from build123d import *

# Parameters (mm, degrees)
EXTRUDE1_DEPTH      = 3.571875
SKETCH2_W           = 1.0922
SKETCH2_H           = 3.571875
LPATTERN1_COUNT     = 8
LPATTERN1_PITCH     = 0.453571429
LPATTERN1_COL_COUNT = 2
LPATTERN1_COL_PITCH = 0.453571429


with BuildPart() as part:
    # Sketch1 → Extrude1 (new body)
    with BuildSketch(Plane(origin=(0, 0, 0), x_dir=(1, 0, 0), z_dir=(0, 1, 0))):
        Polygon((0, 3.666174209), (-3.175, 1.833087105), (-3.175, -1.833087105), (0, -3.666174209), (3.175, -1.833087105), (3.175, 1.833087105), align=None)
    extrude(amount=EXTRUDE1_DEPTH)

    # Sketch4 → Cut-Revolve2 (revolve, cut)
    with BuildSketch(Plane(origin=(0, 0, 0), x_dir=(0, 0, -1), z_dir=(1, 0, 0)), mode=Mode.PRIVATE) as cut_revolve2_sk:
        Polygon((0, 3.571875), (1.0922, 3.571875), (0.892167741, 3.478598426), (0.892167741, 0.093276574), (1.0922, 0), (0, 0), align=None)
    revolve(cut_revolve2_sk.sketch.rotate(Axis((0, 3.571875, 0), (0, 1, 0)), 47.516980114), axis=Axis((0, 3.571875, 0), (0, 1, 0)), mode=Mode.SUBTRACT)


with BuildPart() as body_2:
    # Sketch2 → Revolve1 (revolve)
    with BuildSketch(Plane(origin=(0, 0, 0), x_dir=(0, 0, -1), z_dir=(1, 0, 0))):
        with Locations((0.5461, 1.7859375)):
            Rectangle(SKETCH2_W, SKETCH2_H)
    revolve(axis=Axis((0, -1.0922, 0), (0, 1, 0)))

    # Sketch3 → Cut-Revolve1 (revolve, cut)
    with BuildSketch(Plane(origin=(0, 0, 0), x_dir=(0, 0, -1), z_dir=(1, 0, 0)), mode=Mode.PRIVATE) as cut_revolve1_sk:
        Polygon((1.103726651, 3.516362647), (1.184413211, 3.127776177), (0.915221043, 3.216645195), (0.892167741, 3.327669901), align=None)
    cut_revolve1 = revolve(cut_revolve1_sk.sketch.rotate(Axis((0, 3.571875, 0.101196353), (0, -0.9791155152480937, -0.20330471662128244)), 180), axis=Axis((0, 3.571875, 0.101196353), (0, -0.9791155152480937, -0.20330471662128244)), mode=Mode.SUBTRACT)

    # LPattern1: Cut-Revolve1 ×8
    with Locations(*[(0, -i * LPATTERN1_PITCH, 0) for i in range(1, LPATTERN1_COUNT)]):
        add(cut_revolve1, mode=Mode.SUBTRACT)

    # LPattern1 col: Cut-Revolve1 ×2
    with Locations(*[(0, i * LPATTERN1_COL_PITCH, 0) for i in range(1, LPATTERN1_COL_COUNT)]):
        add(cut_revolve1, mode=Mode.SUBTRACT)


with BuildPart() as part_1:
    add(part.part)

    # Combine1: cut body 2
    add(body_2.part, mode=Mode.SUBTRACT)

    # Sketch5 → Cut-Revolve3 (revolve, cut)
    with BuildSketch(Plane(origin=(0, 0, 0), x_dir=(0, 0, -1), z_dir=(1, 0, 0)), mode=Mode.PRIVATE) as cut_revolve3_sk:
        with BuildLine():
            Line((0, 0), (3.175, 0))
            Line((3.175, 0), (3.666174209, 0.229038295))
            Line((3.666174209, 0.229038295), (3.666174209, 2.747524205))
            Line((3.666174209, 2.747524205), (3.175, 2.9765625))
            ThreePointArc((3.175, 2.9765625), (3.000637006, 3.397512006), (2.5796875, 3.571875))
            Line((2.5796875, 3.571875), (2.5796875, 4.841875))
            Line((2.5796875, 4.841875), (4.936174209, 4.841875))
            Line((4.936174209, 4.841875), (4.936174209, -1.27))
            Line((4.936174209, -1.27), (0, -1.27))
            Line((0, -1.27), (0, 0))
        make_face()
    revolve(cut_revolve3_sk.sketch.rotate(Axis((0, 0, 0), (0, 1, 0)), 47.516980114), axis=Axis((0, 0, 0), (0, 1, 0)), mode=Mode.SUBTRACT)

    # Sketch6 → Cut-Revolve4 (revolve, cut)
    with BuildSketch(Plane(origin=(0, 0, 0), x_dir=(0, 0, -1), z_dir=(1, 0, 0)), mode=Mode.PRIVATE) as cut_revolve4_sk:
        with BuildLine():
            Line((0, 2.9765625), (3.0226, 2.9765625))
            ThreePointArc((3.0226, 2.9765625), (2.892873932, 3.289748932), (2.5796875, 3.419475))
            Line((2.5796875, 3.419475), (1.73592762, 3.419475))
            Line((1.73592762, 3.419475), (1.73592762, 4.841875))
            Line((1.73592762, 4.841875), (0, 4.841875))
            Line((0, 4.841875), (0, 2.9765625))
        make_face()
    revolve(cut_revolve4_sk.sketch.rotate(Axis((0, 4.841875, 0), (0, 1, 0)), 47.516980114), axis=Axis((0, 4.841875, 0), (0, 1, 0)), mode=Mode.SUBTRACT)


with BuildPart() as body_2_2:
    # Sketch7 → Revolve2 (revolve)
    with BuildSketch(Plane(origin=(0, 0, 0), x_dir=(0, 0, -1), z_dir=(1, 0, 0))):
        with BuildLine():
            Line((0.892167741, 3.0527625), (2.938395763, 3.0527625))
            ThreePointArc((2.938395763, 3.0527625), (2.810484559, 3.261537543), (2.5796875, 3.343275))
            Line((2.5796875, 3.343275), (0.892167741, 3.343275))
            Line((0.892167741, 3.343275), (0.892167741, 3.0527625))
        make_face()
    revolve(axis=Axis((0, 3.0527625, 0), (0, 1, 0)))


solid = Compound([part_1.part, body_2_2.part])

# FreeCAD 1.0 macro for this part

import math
import FreeCAD as App
import Part
import Sketcher
from FreeCAD import Vector
Q = App.Units.Quantity

doc = App.newDocument("Part")
params = doc.addObject("Spreadsheet::Sheet", "Params")
for row, (alias, value) in enumerate([
    ("pad1_length", "0.140625 in"),
    ("sketch2_width", "0.140625 in"),
    ("sketch2_height", "0.043 in"),
    ("groove_angle", "360 deg"),
    ("sketch3_width", "0.140625 in"),
    ("sketch3_height", "0.043 in"),
    ("revolution_angle", "360 deg"),
    ("sketch4_length", "0.015625 in"),
    ("groove2_angle", "360 deg"),
    ("linearpattern_pitch", "0.453571 mm"),
    ("linearpattern2_pitch", "0.453571 mm"),
    ("sketch5_width", "0.05 in"),
    ("sketch5_height", "0.125 in"),
    ("groove3_angle", "360 deg"),
    ("sketch6_width", "0.056 in"),
    ("sketch6_height", "0.119 in"),
    ("groove4_angle", "360 deg"),
    ("revolution2_angle", "360 deg"),
], start=1):
    params.set(f"A{row}", alias)
    params.set(f"B{row}", "=" + value)
    params.setAlias(f"B{row}", alias)

body = doc.addObject("PartDesign::Body", "Body")

sketch1 = body.newObject("Sketcher::SketchObject", "Sketch")
sketch1.AttachmentSupport = (doc.getObject("XZ_Plane"), [""])
sketch1.MapMode = "FlatFace"
sketch1.addGeometry([
    Part.LineSegment(Vector(0, -3.666174, 0), Vector(-3.175, -1.833087, 0)),
    Part.LineSegment(Vector(-3.175, -1.833087, 0), Vector(-3.175, 1.833087, 0)),
    Part.LineSegment(Vector(-3.175, 1.833087, 0), Vector(0, 3.666174, 0)),
    Part.LineSegment(Vector(0, 3.666174, 0), Vector(3.175, 1.833087, 0)),
    Part.LineSegment(Vector(3.175, 1.833087, 0), Vector(3.175, -1.833087, 0)),
    Part.LineSegment(Vector(3.175, -1.833087, 0), Vector(0, -3.666174, 0)),
], False)
sketch1.addConstraint([
    Sketcher.Constraint("Coincident", 0, 2, 1, 1),
    Sketcher.Constraint("Coincident", 1, 2, 2, 1),
    Sketcher.Constraint("Coincident", 2, 2, 3, 1),
    Sketcher.Constraint("Coincident", 3, 2, 4, 1),
    Sketcher.Constraint("Coincident", 4, 2, 5, 1),
    Sketcher.Constraint("Coincident", 5, 2, 0, 1),
    Sketcher.Constraint("Vertical", 1),
    Sketcher.Constraint("Vertical", 4),
    Sketcher.Constraint("Symmetric", 0, 2, 3, 2, -1, 1),
    Sketcher.Constraint("Symmetric", 2, 2, 5, 2, -1, 1),
    Sketcher.Constraint("PointOnObject", 2, 2, -2),
    Sketcher.Constraint("Parallel", 2, 5),
    Sketcher.Constraint("Horizontal", 1, 2, 3, 2),
    Sketcher.Constraint("Angle", 0, Q("150 deg")),
    Sketcher.Constraint("DistanceX", 1, 2, 3, 2, Q("0.25 in")),
    Sketcher.Constraint("DistanceY", 1, 1, 1, 2, Q("3.666174 mm")),
])
pad1 = body.newObject("PartDesign::Pad", "Pad")
pad1.Profile = sketch1
pad1.setExpression("Length", "Params.pad1_length")
pad1.Reversed = True

sketch2 = body.newObject("Sketcher::SketchObject", "Sketch001")
sketch2.AttachmentSupport = (doc.getObject("YZ_Plane"), [""])
sketch2.MapMode = "FlatFace"
sketch2.addGeometry([
    Part.LineSegment(Vector(3.571875, -1.0922, 0), Vector(3.571875, 0, 0)),
    Part.LineSegment(Vector(3.571875, 0, 0), Vector(0, 0, 0)),
    Part.LineSegment(Vector(0, 0, 0), Vector(0, -1.0922, 0)),
    Part.LineSegment(Vector(0, -1.0922, 0), Vector(0.093277, -0.892168, 0)),
    Part.LineSegment(Vector(0.093277, -0.892168, 0), Vector(3.478598, -0.892168, 0)),
    Part.LineSegment(Vector(3.478598, -0.892168, 0), Vector(3.571875, -1.0922, 0)),
], False)
sketch2.addConstraint([
    Sketcher.Constraint("Coincident", 0, 2, 1, 1),
    Sketcher.Constraint("Coincident", 1, 2, 2, 1),
    Sketcher.Constraint("Coincident", 2, 2, 3, 1),
    Sketcher.Constraint("Coincident", 3, 2, 4, 1),
    Sketcher.Constraint("Coincident", 4, 2, 5, 1),
    Sketcher.Constraint("Coincident", 5, 2, 0, 1),
    Sketcher.Constraint("Vertical", 0),
    Sketcher.Constraint("Horizontal", 1),
    Sketcher.Constraint("Vertical", 2),
    Sketcher.Constraint("Horizontal", 4),
    Sketcher.Constraint("Coincident", 1, 2, -1, 1),
    Sketcher.Constraint("Horizontal", 2, 2, 5, 2),
    Sketcher.Constraint("Equal", 3, 5),
    Sketcher.Constraint("Angle", 3, Q("65 deg")),
    Sketcher.Constraint("DistanceX", 1, 2, 1, 1, Q("0.140625 in")),
    Sketcher.Constraint("DistanceY", 0, 1, 0, 2, Q("0.043 in")),
    Sketcher.Constraint("DistanceX", 4, 1, 4, 2, Q("3.385322 mm")),
])
sketch2.setExpression("Constraints[14]", "Params.sketch2_width")
sketch2.setExpression("Constraints[15]", "Params.sketch2_height")
groove = body.newObject("PartDesign::Groove", "Groove")
groove.Profile = sketch2
groove.ReferenceAxis = (sketch2, ["H_Axis"])
groove.setExpression("Angle", "Params.groove_angle")
body2 = doc.addObject("PartDesign::Body", "Body001")

sketch3 = body2.newObject("Sketcher::SketchObject", "Sketch002")
sketch3.AttachmentSupport = (doc.getObject("YZ_Plane001"), [""])
sketch3.MapMode = "FlatFace"
sketch3.addGeometry([
    Part.LineSegment(Vector(3.571875, 0, 0), Vector(0, 0, 0)),
    Part.LineSegment(Vector(0, 0, 0), Vector(0, -1.0922, 0)),
    Part.LineSegment(Vector(0, -1.0922, 0), Vector(3.571875, -1.0922, 0)),
    Part.LineSegment(Vector(3.571875, -1.0922, 0), Vector(3.571875, 0, 0)),
], False)
sketch3.addConstraint([
    Sketcher.Constraint("Coincident", 0, 2, 1, 1),
    Sketcher.Constraint("Coincident", 1, 2, 2, 1),
    Sketcher.Constraint("Coincident", 2, 2, 3, 1),
    Sketcher.Constraint("Coincident", 3, 2, 0, 1),
    Sketcher.Constraint("Horizontal", 0),
    Sketcher.Constraint("Vertical", 1),
    Sketcher.Constraint("Horizontal", 2),
    Sketcher.Constraint("Vertical", 3),
    Sketcher.Constraint("Coincident", 0, 2, -1, 1),
    Sketcher.Constraint("DistanceX", 0, 2, 0, 1, Q("0.140625 in")),
    Sketcher.Constraint("DistanceY", 1, 2, 1, 1, Q("0.043 in")),
])
sketch3.setExpression("Constraints[9]", "Params.sketch3_width")
sketch3.setExpression("Constraints[10]", "Params.sketch3_height")
revolution = body2.newObject("PartDesign::Revolution", "Revolution")
revolution.Profile = sketch3
revolution.ReferenceAxis = (sketch3, ["H_Axis"])
revolution.setExpression("Angle", "Params.revolution_angle")

sketch4 = body2.newObject("Sketcher::SketchObject", "Sketch003")
sketch4.AttachmentSupport = (doc.getObject("YZ_Plane001"), [""])
sketch4.MapMode = "FlatFace"
sketch4.addGeometry([
    Part.LineSegment(Vector(3.127776, -1.184413, 0), Vector(3.516363, -1.103727, 0)),
    Part.LineSegment(Vector(3.516363, -1.103727, 0), Vector(3.32767, -0.892168, 0)),
    Part.LineSegment(Vector(3.32767, -0.892168, 0), Vector(3.216645, -0.915221, 0)),
    Part.LineSegment(Vector(3.216645, -0.915221, 0), Vector(3.127776, -1.184413, 0)),
], False)
sketch4.addGeometry(Part.LineSegment(Vector(3.278807, 0.040343, 0), Vector(2.89022, -0.040343, 0)), True)
sketch4.addConstraint([
    Sketcher.Constraint("Coincident", 0, 2, 1, 1),
    Sketcher.Constraint("Coincident", 1, 2, 2, 1),
    Sketcher.Constraint("Coincident", 2, 2, 3, 1),
    Sketcher.Constraint("Coincident", 3, 2, 0, 1),
    Sketcher.Constraint("Parallel", 0, 2),
    Sketcher.Constraint("Parallel", 2, 4),
    Sketcher.Constraint("Equal", 1, 3),
    Sketcher.Constraint("Equal", 0, 4),
    Sketcher.Constraint("Distance", 0, Q("0.015625 in")),
    Sketcher.Constraint("DistanceX", 2, 2, 0, 2, Q("0.0117999 in")),
    Sketcher.Constraint("DistanceX", -1, 1, 1, 2, Q("3.32767 mm")),
    Sketcher.Constraint("DistanceY", 2, 2, -1, 1, Q("0.915221 mm")),
    Sketcher.Constraint("DistanceX", -1, 1, 4, 2, Q("2.89022 mm")),
    Sketcher.Constraint("DistanceY", 0, 2, 1, 2, Q("0.211559 mm")),
    Sketcher.Constraint("DistanceX", 3, 2, 2, 2, Q("0.088869 mm")),
    Sketcher.Constraint("DistanceY", 1, 2, 4, 1, Q("0.932511 mm")),
])
sketch4.setExpression("Constraints[8]", "Params.sketch4_length")
groove2 = body2.newObject("PartDesign::Groove", "Groove001")
groove2.Profile = sketch4
groove2.ReferenceAxis = (sketch4, ["Axis0"])
groove2.setExpression("Angle", "Params.groove2_angle")
doc.recompute()

linearpattern = body2.newObject("PartDesign::LinearPattern", "LinearPattern")
linearpattern.Originals = [groove2]
linearpattern.Direction = (doc.getObject("Y_Axis001"), [""])
linearpattern.Mode = "offset"
linearpattern.setExpression("Offset", "Params.linearpattern_pitch")
linearpattern.Occurrences = 8
linearpattern.Reversed = True
body2.Tip = linearpattern
doc.recompute()

linearpattern2 = body2.newObject("PartDesign::LinearPattern", "LinearPattern001")
linearpattern2.Originals = [groove2]
linearpattern2.Direction = (doc.getObject("Y_Axis001"), [""])
linearpattern2.Mode = "offset"
linearpattern2.setExpression("Offset", "Params.linearpattern2_pitch")
linearpattern2.Occurrences = 2
body2.Tip = linearpattern2
doc.recompute()

boolean = body.newObject("PartDesign::Boolean", "Boolean")
boolean.Type = "Cut"
boolean.addObjects([body2])

sketch5 = body.newObject("Sketcher::SketchObject", "Sketch004")
sketch5.AttachmentSupport = (doc.getObject("YZ_Plane"), [""])
sketch5.MapMode = "FlatFace"
sketch5.addGeometry([
    Part.LineSegment(Vector(0, -3.175, 0), Vector(0, 0, 0)),
    Part.LineSegment(Vector(0, 0, 0), Vector(-1.27, 0, 0)),
    Part.LineSegment(Vector(-1.27, 0, 0), Vector(-1.27, -4.936174, 0)),
    Part.LineSegment(Vector(-1.27, -4.936174, 0), Vector(4.841875, -4.936174, 0)),
    Part.LineSegment(Vector(4.841875, -4.936174, 0), Vector(4.841875, -2.579687, 0)),
    Part.LineSegment(Vector(4.841875, -2.579687, 0), Vector(3.571875, -2.579687, 0)),
    Part.ArcOfCircle(Part.Circle(Vector(2.976563, -2.579688, 0), Vector(0, 0, 1), 0.595312), math.radians(-90), math.radians(0)),
    Part.LineSegment(Vector(2.976562, -3.175, 0), Vector(2.747524, -3.666174, 0)),
    Part.LineSegment(Vector(2.747524, -3.666174, 0), Vector(0.229038, -3.666174, 0)),
    Part.LineSegment(Vector(0.229038, -3.666174, 0), Vector(0, -3.175, 0)),
], False)
sketch5.addConstraint([
    Sketcher.Constraint("Coincident", 0, 2, 1, 1),
    Sketcher.Constraint("Coincident", 1, 2, 2, 1),
    Sketcher.Constraint("Coincident", 2, 2, 3, 1),
    Sketcher.Constraint("Coincident", 3, 2, 4, 1),
    Sketcher.Constraint("Coincident", 4, 2, 5, 1),
    Sketcher.Constraint("Coincident", 5, 2, 6, 2),
    Sketcher.Constraint("Coincident", 6, 1, 7, 1),
    Sketcher.Constraint("Coincident", 7, 2, 8, 1),
    Sketcher.Constraint("Coincident", 8, 2, 9, 1),
    Sketcher.Constraint("Coincident", 9, 2, 0, 1),
    Sketcher.Constraint("Vertical", 0),
    Sketcher.Constraint("Horizontal", 1),
    Sketcher.Constraint("Vertical", 2),
    Sketcher.Constraint("Horizontal", 3),
    Sketcher.Constraint("Vertical", 4),
    Sketcher.Constraint("Horizontal", 5),
    Sketcher.Constraint("Horizontal", 8),
    Sketcher.Constraint("Coincident", 0, 2, -1, 1),
    Sketcher.Constraint("Horizontal", 6, 3, 4, 2),
    Sketcher.Constraint("Horizontal", 6, 1, 9, 2),
    Sketcher.Constraint("Equal", 1, 5),
    Sketcher.Constraint("Equal", 7, 9),
    Sketcher.Constraint("Angle", 7, Q("-115 deg")),
    Sketcher.Constraint("DistanceX", 1, 2, 1, 1, Q("0.05 in")),
    Sketcher.Constraint("DistanceY", 0, 1, 0, 2, Q("0.125 in")),
    Sketcher.Constraint("DistanceY", 3, 2, 7, 2, Q("0.05 in")),
    Sketcher.Constraint("DistanceX", -1, 1, 5, 2, Q("0.140625 in")),
    Sketcher.Constraint("Radius", 6, Q("0.595312 mm")),
    Sketcher.Constraint("Distance", 7, Q("0.541951 mm")),
    Sketcher.Constraint("DistanceX", 8, 2, 8, 1, Q("2.518486 mm")),
])
sketch5.setExpression("Constraints[23]", "Params.sketch5_width")
sketch5.setExpression("Constraints[24]", "Params.sketch5_height")
groove3 = body.newObject("PartDesign::Groove", "Groove002")
groove3.Profile = sketch5
groove3.ReferenceAxis = (sketch5, ["H_Axis"])
groove3.setExpression("Angle", "Params.groove3_angle")

sketch6 = body.newObject("Sketcher::SketchObject", "Sketch005")
sketch6.AttachmentSupport = (doc.getObject("YZ_Plane"), [""])
sketch6.MapMode = "FlatFace"
sketch6.addGeometry([
    Part.LineSegment(Vector(2.976562, 0, 0), Vector(2.976562, -3.0226, 0)),
    Part.ArcOfCircle(Part.Circle(Vector(2.976562, -2.579687, 0), Vector(0, 0, 1), 0.442913), math.radians(-90), math.radians(0)),
    Part.LineSegment(Vector(3.419475, -2.579687, 0), Vector(3.419475, -1.735928, 0)),
    Part.LineSegment(Vector(3.419475, -1.735928, 0), Vector(4.841875, -1.735928, 0)),
    Part.LineSegment(Vector(4.841875, -1.735928, 0), Vector(4.841875, 0, 0)),
    Part.LineSegment(Vector(4.841875, 0, 0), Vector(2.976562, 0, 0)),
], False)
sketch6.addConstraint([
    Sketcher.Constraint("Coincident", 0, 2, 1, 1),
    Sketcher.Constraint("Tangent", 1, 2, 2, 1),
    Sketcher.Constraint("Coincident", 2, 2, 3, 1),
    Sketcher.Constraint("Coincident", 3, 2, 4, 1),
    Sketcher.Constraint("Coincident", 4, 2, 5, 1),
    Sketcher.Constraint("Coincident", 5, 2, 0, 1),
    Sketcher.Constraint("Vertical", 0),
    Sketcher.Constraint("Vertical", 2),
    Sketcher.Constraint("Horizontal", 3),
    Sketcher.Constraint("Vertical", 4),
    Sketcher.Constraint("Horizontal", 5),
    Sketcher.Constraint("PointOnObject", 4, 2, -1),
    Sketcher.Constraint("Vertical", 1, 3, 0, 2),
    Sketcher.Constraint("DistanceX", 3, 1, 3, 2, Q("0.056 in")),
    Sketcher.Constraint("DistanceY", 0, 2, 0, 1, Q("0.119 in")),
    Sketcher.Constraint("Radius", 1, Q("0.442913 mm")),
    Sketcher.Constraint("DistanceY", 2, 1, 2, 2, Q("0.84376 mm")),
    Sketcher.Constraint("DistanceX", -1, 1, 1, 3, Q("2.976562 mm")),
])
sketch6.setExpression("Constraints[13]", "Params.sketch6_width")
sketch6.setExpression("Constraints[14]", "Params.sketch6_height")
groove4 = body.newObject("PartDesign::Groove", "Groove003")
groove4.Profile = sketch6
groove4.ReferenceAxis = (sketch6, ["H_Axis"])
groove4.setExpression("Angle", "Params.groove4_angle")
body3 = doc.addObject("PartDesign::Body", "Body002")

sketch7 = body3.newObject("Sketcher::SketchObject", "Sketch006")
sketch7.AttachmentSupport = (doc.getObject("YZ_Plane002"), [""])
sketch7.MapMode = "FlatFace"
sketch7.addGeometry([
    Part.LineSegment(Vector(3.052763, -0.892168, 0), Vector(3.052763, -2.938396, 0)),
    Part.ArcOfCircle(Part.Circle(Vector(2.976562, -2.579687, 0), Vector(0, 0, 1), 0.366713), math.radians(-78.006999), math.radians(0)),
    Part.LineSegment(Vector(3.343275, -2.579687, 0), Vector(3.343275, -0.892168, 0)),
    Part.LineSegment(Vector(3.343275, -0.892168, 0), Vector(3.052763, -0.892168, 0)),
], False)
sketch7.addConstraint([
    Sketcher.Constraint("Coincident", 0, 2, 1, 1),
    Sketcher.Constraint("Tangent", 1, 2, 2, 1),
    Sketcher.Constraint("Coincident", 2, 2, 3, 1),
    Sketcher.Constraint("Coincident", 3, 2, 0, 1),
    Sketcher.Constraint("Vertical", 0),
    Sketcher.Constraint("Vertical", 2),
    Sketcher.Constraint("Horizontal", 3),
    Sketcher.Constraint("DistanceX", 1, 3, 0, 2, Q("0.003 in")),
    Sketcher.Constraint("Radius", 1, Q("0.366713 mm")),
    Sketcher.Constraint("DistanceY", 0, 2, 0, 1, Q("2.046228 mm")),
    Sketcher.Constraint("DistanceX", -1, 1, 1, 3, Q("2.976562 mm")),
    Sketcher.Constraint("DistanceY", 1, 3, -1, 1, Q("2.579687 mm")),
])
revolution2 = body3.newObject("PartDesign::Revolution", "Revolution001")
revolution2.Profile = sketch7
revolution2.ReferenceAxis = (sketch7, ["H_Axis"])
revolution2.setExpression("Angle", "Params.revolution2_angle")

doc.recompute()
